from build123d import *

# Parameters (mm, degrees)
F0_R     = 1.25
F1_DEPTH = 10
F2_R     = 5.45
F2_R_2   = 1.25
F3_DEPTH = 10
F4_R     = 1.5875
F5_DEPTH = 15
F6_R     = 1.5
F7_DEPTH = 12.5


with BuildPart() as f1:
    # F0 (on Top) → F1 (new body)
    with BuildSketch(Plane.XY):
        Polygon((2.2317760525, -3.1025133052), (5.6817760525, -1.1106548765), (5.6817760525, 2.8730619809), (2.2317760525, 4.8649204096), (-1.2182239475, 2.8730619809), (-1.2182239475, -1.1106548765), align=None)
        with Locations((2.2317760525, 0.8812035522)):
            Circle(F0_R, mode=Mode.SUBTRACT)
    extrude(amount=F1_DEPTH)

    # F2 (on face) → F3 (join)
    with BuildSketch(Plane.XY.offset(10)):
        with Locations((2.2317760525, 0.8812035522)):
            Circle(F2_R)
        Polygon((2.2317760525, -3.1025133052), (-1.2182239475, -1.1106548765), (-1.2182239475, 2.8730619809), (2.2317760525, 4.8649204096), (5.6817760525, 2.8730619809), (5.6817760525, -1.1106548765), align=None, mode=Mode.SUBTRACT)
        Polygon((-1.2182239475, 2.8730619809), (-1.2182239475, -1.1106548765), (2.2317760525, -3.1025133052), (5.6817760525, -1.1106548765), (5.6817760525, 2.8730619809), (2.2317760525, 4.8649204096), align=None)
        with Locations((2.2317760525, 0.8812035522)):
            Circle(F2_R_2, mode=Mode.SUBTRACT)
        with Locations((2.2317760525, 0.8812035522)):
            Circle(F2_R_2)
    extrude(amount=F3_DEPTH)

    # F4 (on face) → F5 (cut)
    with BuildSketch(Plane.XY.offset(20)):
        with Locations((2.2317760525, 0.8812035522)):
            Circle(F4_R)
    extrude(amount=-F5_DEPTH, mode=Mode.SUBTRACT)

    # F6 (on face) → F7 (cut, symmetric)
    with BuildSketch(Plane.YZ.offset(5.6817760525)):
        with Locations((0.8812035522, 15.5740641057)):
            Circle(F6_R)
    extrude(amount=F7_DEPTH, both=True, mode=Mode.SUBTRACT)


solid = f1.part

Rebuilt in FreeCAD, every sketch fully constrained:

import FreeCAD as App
import Part
import Sketcher
Q = App.Units.Quantity

doc = App.newDocument("Part")
params = doc.addObject("Spreadsheet::Sheet", "Params")
for row, (alias, value) in enumerate([
    ("sketch1_diameter", "2.5 mm"),
    ("pad1_length", "10 mm"),
    ("sketch2_diameter", "10.9 mm"),
    ("pad2_length", "10 mm"),
    ("pocket1_length", "15 mm"),
    ("sketch4_diameter", "3 mm"),
    ("pocket2_length", "25 mm"),
], start=1):
    params.set(f"A{row}", alias)
    params.set(f"B{row}", "=" + value)
    params.setAlias(f"B{row}", alias)

body = doc.addObject("PartDesign::Body", "Body")

# Sketch on XY plane
sketch1 = body.newObject("Sketcher::SketchObject", "Sketch")
sketch1.AttachmentSupport = (doc.getObject("XY_Plane"), [""])
sketch1.MapMode = "FlatFace"
sketch1.addGeometry(Part.LineSegment(App.Vector(2.231776, -3.102513, 0), App.Vector(5.681776, -1.110655, 0)), False)
sketch1.addGeometry(Part.LineSegment(App.Vector(5.681776, -1.110655, 0), App.Vector(5.681776, 2.873062, 0)), False)
sketch1.addGeometry(Part.LineSegment(App.Vector(5.681776, 2.873062, 0), App.Vector(2.231776, 4.86492, 0)), False)
sketch1.addGeometry(Part.LineSegment(App.Vector(2.231776, 4.86492, 0), App.Vector(-1.218224, 2.873062, 0)), False)
sketch1.addGeometry(Part.LineSegment(App.Vector(-1.218224, 2.873062, 0), App.Vector(-1.218224, -1.110655, 0)), False)
sketch1.addGeometry(Part.LineSegment(App.Vector(-1.218224, -1.110655, 0), App.Vector(2.231776, -3.102513, 0)), False)
sketch1.addGeometry(Part.Circle(App.Vector(2.231776, 0.881204, 0), App.Vector(0, 0, 1), 1.25), False)
sketch1.addConstraint(Sketcher.Constraint("Coincident", 0, 2, 1, 1))
sketch1.addConstraint(Sketcher.Constraint("Coincident", 1, 2, 2, 1))
sketch1.addConstraint(Sketcher.Constraint("Coincident", 2, 2, 3, 1))
sketch1.addConstraint(Sketcher.Constraint("Coincident", 3, 2, 4, 1))
sketch1.addConstraint(Sketcher.Constraint("Coincident", 4, 2, 5, 1))
sketch1.addConstraint(Sketcher.Constraint("Coincident", 5, 2, 0, 1))
sketch1.addConstraint(Sketcher.Constraint("Vertical", 1))
sketch1.addConstraint(Sketcher.Constraint("Vertical", 4))
sketch1.addConstraint(Sketcher.Constraint("Parallel", 0, 3))
sketch1.addConstraint(Sketcher.Constraint("Parallel", 2, 5))
sketch1.addConstraint(Sketcher.Constraint("Horizontal", 1, 2, 3, 2))
sketch1.addConstraint(Sketcher.Constraint("Horizontal", 0, 2, 4, 2))
sketch1.addConstraint(Sketcher.Constraint("Vertical", 6, 3, 2, 2))
sketch1.addConstraint(Sketcher.Constraint("Vertical", 2, 2, 5, 2))
sketch1.addConstraint(Sketcher.Constraint("Diameter", 6, 2.5))
sketch1.addConstraint(Sketcher.Constraint("Angle", 0, Q("30 deg")))
sketch1.addConstraint(Sketcher.Constraint("DistanceX", 3, 2, 1, 2, 6.9))
sketch1.addConstraint(Sketcher.Constraint("DistanceY", 1, 1, 1, 2, 3.983717))
sketch1.addConstraint(Sketcher.Constraint("DistanceY", -1, 1, 1, 2, 2.873062))
sketch1.addConstraint(Sketcher.Constraint("DistanceY", 0, 2, 6, 3, 1.991858))
sketch1.addConstraint(Sketcher.Constraint("DistanceX", -1, 1, 6, 3, 2.231776))
sketch1.setExpression("Constraints[14]", "Params.sketch1_diameter")
pad1 = body.newObject("PartDesign::Pad", "Pad")
pad1.Profile = sketch1
pad1.setExpression("Length", "Params.pad1_length")

# Sketch on XY plane
sketch2 = body.newObject("Sketcher::SketchObject", "Sketch001")
sketch2.AttachmentSupport = (doc.getObject("XY_Plane"), [""])
sketch2.MapMode = "FlatFace"
sketch2.AttachmentOffset = App.Placement(App.Vector(0, 0, 10), App.Rotation())
sketch2.addGeometry(Part.Circle(App.Vector(2.231776, 0.881204, 0), App.Vector(0, 0, 1), 5.45), False)
sketch2.addConstraint(Sketcher.Constraint("Diameter", 0, 10.9))
sketch2.addConstraint(Sketcher.Constraint("DistanceX", -1, 1, 0, 3, 2.231776))
sketch2.addConstraint(Sketcher.Constraint("DistanceY", -1, 1, 0, 3, 0.881204))
sketch2.setExpression("Constraints[0]", "Params.sketch2_diameter")
pad2 = body.newObject("PartDesign::Pad", "Pad001")
pad2.Profile = sketch2
pad2.setExpression("Length", "Params.pad2_length")

# Sketch on XY plane
sketch3 = body.newObject("Sketcher::SketchObject", "Sketch002")
sketch3.AttachmentSupport = (doc.getObject("XY_Plane"), [""])
sketch3.MapMode = "FlatFace"
sketch3.AttachmentOffset = App.Placement(App.Vector(0, 0, 20), App.Rotation())
sketch3.addGeometry(Part.Circle(App.Vector(2.231776, 0.881204, 0), App.Vector(0, 0, 1), 1.5875), False)
sketch3.addConstraint(Sketcher.Constraint("Diameter", 0, 3.175))
sketch3.addConstraint(Sketcher.Constraint("DistanceX", -1, 1, 0, 3, 2.231776))
sketch3.addConstraint(Sketcher.Constraint("DistanceY", -1, 1, 0, 3, 0.881204))
pocket1 = body.newObject("PartDesign::Pocket", "Pocket")
pocket1.Profile = sketch3
pocket1.setExpression("Length", "Params.pocket1_length")

# Sketch on YZ plane
sketch4 = body.newObject("Sketcher::SketchObject", "Sketch003")
sketch4.AttachmentSupport = (doc.getObject("YZ_Plane"), [""])
sketch4.MapMode = "FlatFace"
sketch4.AttachmentOffset = App.Placement(App.Vector(0, 0, 5.681776), App.Rotation())
sketch4.addGeometry(Part.Circle(App.Vector(0.881204, 15.574064, 0), App.Vector(0, 0, 1), 1.5), False)
sketch4.addConstraint(Sketcher.Constraint("Diameter", 0, 3.0))
sketch4.addConstraint(Sketcher.Constraint("DistanceX", -1, 1, 0, 3, 0.881204))
sketch4.addConstraint(Sketcher.Constraint("DistanceY", -1, 1, 0, 3, 15.574064))
sketch4.setExpression("Constraints[0]", "Params.sketch4_diameter")
pocket2 = body.newObject("PartDesign::Pocket", "Pocket001")
pocket2.Profile = sketch4
pocket2.setExpression("Length", "Params.pocket2_length")
pocket2.Midplane = True

doc.recompute()
